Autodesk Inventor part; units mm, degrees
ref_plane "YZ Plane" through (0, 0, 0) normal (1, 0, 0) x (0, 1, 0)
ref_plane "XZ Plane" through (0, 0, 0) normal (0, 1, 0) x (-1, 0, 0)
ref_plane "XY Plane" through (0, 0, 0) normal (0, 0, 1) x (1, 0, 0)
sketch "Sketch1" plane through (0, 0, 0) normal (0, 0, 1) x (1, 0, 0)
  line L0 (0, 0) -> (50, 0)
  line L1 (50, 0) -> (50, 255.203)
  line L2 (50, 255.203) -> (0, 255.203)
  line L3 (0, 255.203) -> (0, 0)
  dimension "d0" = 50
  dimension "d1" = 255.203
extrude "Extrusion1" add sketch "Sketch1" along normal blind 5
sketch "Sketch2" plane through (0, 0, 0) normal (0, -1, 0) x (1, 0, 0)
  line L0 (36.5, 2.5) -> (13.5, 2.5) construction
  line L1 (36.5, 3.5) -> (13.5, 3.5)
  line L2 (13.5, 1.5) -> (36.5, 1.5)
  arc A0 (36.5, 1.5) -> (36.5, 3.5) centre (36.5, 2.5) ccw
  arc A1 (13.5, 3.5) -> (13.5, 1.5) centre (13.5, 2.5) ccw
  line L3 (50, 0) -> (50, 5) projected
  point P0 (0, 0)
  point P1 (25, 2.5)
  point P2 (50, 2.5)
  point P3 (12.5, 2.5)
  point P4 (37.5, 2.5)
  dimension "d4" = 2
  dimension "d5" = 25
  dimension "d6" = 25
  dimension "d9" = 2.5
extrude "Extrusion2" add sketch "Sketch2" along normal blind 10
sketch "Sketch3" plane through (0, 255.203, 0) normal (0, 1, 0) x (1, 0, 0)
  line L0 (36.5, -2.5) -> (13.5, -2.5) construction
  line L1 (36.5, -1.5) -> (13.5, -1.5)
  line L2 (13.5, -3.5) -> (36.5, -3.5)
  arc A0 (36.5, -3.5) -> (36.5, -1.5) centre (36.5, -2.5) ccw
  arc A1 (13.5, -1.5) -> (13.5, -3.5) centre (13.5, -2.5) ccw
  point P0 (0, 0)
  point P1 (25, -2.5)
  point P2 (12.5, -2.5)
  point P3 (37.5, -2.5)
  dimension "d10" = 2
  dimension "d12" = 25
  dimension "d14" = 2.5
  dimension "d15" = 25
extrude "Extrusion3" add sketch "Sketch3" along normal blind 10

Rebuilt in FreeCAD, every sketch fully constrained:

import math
import FreeCAD as App
import Part
import Sketcher

V = App.Vector
Q = App.Units.Quantity

doc = App.newDocument("Part")
body = doc.addObject("PartDesign::Body", "Body")

# Sketch on XY plane
sketch1 = body.newObject("Sketcher::SketchObject", "Sketch")
sketch1.AttachmentSupport = (doc.getObject("XY_Plane"), [""])
sketch1.MapMode = "FlatFace"
sketch1.addGeometry([
    Part.LineSegment(V(0, 255, 0), V(0, 0, 0)),
    Part.LineSegment(V(0, 0, 0), V(50, 0, 0)),
    Part.LineSegment(V(50, 0, 0), V(50, 255, 0)),
    Part.LineSegment(V(50, 255, 0), V(0, 255, 0)),
], False)
sketch1.addConstraint([
    Sketcher.Constraint("Coincident", 0, 2, 1, 1),
    Sketcher.Constraint("Coincident", 1, 2, 2, 1),
    Sketcher.Constraint("Coincident", 2, 2, 3, 1),
    Sketcher.Constraint("Coincident", 3, 2, 0, 1),
    Sketcher.Constraint("Vertical", 0),
    Sketcher.Constraint("Horizontal", 1),
    Sketcher.Constraint("Vertical", 2),
    Sketcher.Constraint("Horizontal", 3),
    Sketcher.Constraint("Coincident", 0, 2, -1, 1),
    Sketcher.Constraint("DistanceX", 1, 1, 1, 2, Q("50 mm")),
    Sketcher.Constraint("DistanceY", 0, 2, 0, 1, Q("255.203 mm")),
])
pad1 = body.newObject("PartDesign::Pad", "Pad")
pad1.Profile = sketch1
pad1.Length = 5

# Sketch on XZ plane
sketch2 = body.newObject("Sketcher::SketchObject", "Sketch001")
sketch2.AttachmentSupport = (doc.getObject("XZ_Plane"), [""])
sketch2.MapMode = "FlatFace"
sketch2.addGeometry([
    Part.ArcOfCircle(Part.Circle(V(36.5, 2.5, 0), V(0, 0, 1), 1), math.radians(-90), math.radians(90)),
    Part.LineSegment(V(36.5, 3.5, 0), V(13.5, 3.5, 0)),
    Part.ArcOfCircle(Part.Circle(V(13.5, 2.5, 0), V(0, 0, 1), 1), math.radians(90), math.radians(270)),
    Part.LineSegment(V(13.5, 1.5, 0), V(36.5, 1.5, 0)),
], False)
sketch2.addConstraint([
    Sketcher.Constraint("Tangent", 0, 2, 1, 1),
    Sketcher.Constraint("Tangent", 1, 2, 2, 1),
    Sketcher.Constraint("Tangent", 2, 2, 3, 1),
    Sketcher.Constraint("Tangent", 3, 2, 0, 1),
    Sketcher.Constraint("Horizontal", 1),
    Sketcher.Constraint("Horizontal", 3),
    Sketcher.Constraint("Radius", 0, Q("1 mm")),
    Sketcher.Constraint("DistanceY", -1, 1, 0, 3, Q("2.5 mm")),
    Sketcher.Constraint("DistanceX", 1, 2, 1, 1, Q("23 mm")),
    Sketcher.Constraint("DistanceX", -1, 1, 0, 3, Q("36.5 mm")),
])
pad2 = body.newObject("PartDesign::Pad", "Pad001")
pad2.Profile = sketch2
pad2.Length = 10

# Sketch on XZ plane
sketch3 = body.newObject("Sketcher::SketchObject", "Sketch002")
sketch3.AttachmentSupport = (doc.getObject("XZ_Plane"), [""])
sketch3.MapMode = "FlatFace"
sketch3.AttachmentOffset = App.Placement(V(0, 0, -255.203), App.Rotation())
sketch3.addGeometry([
    Part.ArcOfCircle(Part.Circle(V(36.5, 2.5, 0), V(0, 0, 1), 1), math.radians(-90), math.radians(90)),
    Part.LineSegment(V(36.5, 1.5, 0), V(13.5, 1.5, 0)),
    Part.ArcOfCircle(Part.Circle(V(13.5, 2.5, 0), V(0, 0, 1), 1), math.radians(90), math.radians(270)),
    Part.LineSegment(V(13.5, 3.5, 0), V(36.5, 3.5, 0)),
], False)
sketch3.addConstraint([
    Sketcher.Constraint("Tangent", 0, 1, 1, 1),
    Sketcher.Constraint("Tangent", 1, 2, 2, 2),
    Sketcher.Constraint("Tangent", 2, 1, 3, 1),
    Sketcher.Constraint("Tangent", 3, 2, 0, 2),
    Sketcher.Constraint("Horizontal", 1),
    Sketcher.Constraint("Horizontal", 3),
    Sketcher.Constraint("Radius", 0, Q("1 mm")),
    Sketcher.Constraint("DistanceY", -1, 1, 0, 3, Q("2.5 mm")),
    Sketcher.Constraint("DistanceX", 1, 2, 1, 1, Q("23 mm")),
    Sketcher.Constraint("DistanceX", -1, 1, 0, 3, Q("36.5 mm")),
])
pad3 = body.newObject("PartDesign::Pad", "Pad002")
pad3.Profile = sketch3
pad3.Length = 10
pad3.Reversed = True

doc.recompute()
